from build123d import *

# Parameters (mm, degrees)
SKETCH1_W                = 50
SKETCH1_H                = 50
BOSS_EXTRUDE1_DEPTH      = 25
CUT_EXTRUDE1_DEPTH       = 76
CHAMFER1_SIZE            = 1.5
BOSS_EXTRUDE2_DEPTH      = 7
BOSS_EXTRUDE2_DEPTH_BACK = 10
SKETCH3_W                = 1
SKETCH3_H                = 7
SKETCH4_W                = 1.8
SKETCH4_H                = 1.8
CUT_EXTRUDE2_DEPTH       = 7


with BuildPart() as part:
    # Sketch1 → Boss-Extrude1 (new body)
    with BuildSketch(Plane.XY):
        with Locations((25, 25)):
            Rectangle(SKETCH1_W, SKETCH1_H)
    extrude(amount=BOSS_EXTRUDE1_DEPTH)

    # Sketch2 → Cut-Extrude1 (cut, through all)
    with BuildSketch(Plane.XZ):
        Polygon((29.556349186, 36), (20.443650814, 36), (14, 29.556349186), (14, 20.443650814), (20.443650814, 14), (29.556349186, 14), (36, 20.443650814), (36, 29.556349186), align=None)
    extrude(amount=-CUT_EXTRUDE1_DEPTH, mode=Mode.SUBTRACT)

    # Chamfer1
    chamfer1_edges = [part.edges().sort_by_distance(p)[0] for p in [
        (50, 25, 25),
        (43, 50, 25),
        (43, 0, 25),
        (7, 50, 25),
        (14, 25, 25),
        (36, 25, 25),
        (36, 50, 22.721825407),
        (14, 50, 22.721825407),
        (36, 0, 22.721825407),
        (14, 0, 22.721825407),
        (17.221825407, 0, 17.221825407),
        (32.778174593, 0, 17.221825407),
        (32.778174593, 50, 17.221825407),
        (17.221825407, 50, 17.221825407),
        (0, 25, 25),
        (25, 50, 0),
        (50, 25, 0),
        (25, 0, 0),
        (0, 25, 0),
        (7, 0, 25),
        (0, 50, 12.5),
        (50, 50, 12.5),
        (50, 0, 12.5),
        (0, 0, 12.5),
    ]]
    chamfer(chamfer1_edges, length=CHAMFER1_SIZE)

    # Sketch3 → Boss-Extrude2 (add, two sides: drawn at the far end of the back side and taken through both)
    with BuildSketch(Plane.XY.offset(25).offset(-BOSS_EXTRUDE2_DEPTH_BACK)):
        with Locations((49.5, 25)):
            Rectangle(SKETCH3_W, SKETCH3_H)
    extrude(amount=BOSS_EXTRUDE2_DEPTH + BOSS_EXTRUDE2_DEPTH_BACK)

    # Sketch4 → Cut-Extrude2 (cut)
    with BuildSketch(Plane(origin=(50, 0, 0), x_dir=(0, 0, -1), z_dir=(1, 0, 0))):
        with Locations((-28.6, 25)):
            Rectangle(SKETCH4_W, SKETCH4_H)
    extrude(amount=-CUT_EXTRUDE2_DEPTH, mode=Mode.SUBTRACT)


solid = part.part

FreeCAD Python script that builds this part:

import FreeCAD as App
import Part
import Sketcher

V = App.Vector


def edges_at(feature, points):
    """Names of the edges that pass closest to the given points."""
    edges = feature.Shape.Edges
    near = lambda p: min(range(len(edges)), key=lambda i: edges[i].distToShape(Part.Vertex(*p))[0])
    return sorted({f"Edge{near(p) + 1}" for p in points})

doc = App.newDocument("Part")
body = doc.addObject("PartDesign::Body", "Body")

sketch1 = body.newObject("Sketcher::SketchObject", "Sketch")
sketch1.AttachmentSupport = (doc.getObject("XY_Plane"), [""])
sketch1.MapMode = "FlatFace"
sketch1.addGeometry([
    Part.LineSegment(V(0, 50, 0), V(0, 0, 0)),
    Part.LineSegment(V(0, 0, 0), V(50, 0, 0)),
    Part.LineSegment(V(50, 0, 0), V(50, 50, 0)),
    Part.LineSegment(V(50, 50, 0), V(0, 50, 0)),
], False)
sketch1.addConstraint([
    Sketcher.Constraint("Coincident", 0, 2, 1, 1),
    Sketcher.Constraint("Coincident", 1, 2, 2, 1),
    Sketcher.Constraint("Coincident", 2, 2, 3, 1),
    Sketcher.Constraint("Coincident", 3, 2, 0, 1),
    Sketcher.Constraint("Vertical", 0),
    Sketcher.Constraint("Horizontal", 1),
    Sketcher.Constraint("Vertical", 2),
    Sketcher.Constraint("Horizontal", 3),
    Sketcher.Constraint("Coincident", 0, 2, -1, 1),
    Sketcher.Constraint("Equal", 3, 0),
    Sketcher.Constraint("DistanceX", 1, 1, 1, 2, 50.0),
])
pad1 = body.newObject("PartDesign::Pad", "Pad")
pad1.Profile = sketch1
pad1.Length = 25

sketch2 = body.newObject("Sketcher::SketchObject", "Sketch001")
sketch2.AttachmentSupport = (doc.getObject("XZ_Plane"), [""])
sketch2.MapMode = "FlatFace"
sketch2.addGeometry([
    Part.LineSegment(V(29.556349, 36, 0), V(20.443651, 36, 0)),
    Part.LineSegment(V(20.443651, 36, 0), V(14, 29.556349, 0)),
    Part.LineSegment(V(14, 29.556349, 0), V(14, 20.443651, 0)),
    Part.LineSegment(V(14, 20.443651, 0), V(20.443651, 14, 0)),
    Part.LineSegment(V(20.443651, 14, 0), V(29.556349, 14, 0)),
    Part.LineSegment(V(29.556349, 14, 0), V(36, 20.443651, 0)),
    Part.LineSegment(V(36, 20.443651, 0), V(36, 29.556349, 0)),
    Part.LineSegment(V(36, 29.556349, 0), V(29.556349, 36, 0)),
], False)
sketch2.addConstraint([
    Sketcher.Constraint("Coincident", 0, 2, 1, 1),
    Sketcher.Constraint("Coincident", 1, 2, 2, 1),
    Sketcher.Constraint("Coincident", 2, 2, 3, 1),
    Sketcher.Constraint("Coincident", 3, 2, 4, 1),
    Sketcher.Constraint("Coincident", 4, 2, 5, 1),
    Sketcher.Constraint("Coincident", 5, 2, 6, 1),
    Sketcher.Constraint("Coincident", 6, 2, 7, 1),
    Sketcher.Constraint("Coincident", 7, 2, 0, 1),
    Sketcher.Constraint("Horizontal", 0),
    Sketcher.Constraint("Vertical", 2),
    Sketcher.Constraint("Horizontal", 4),
    Sketcher.Constraint("Vertical", 6),
    Sketcher.Constraint("Perpendicular", 1, 3),
    Sketcher.Constraint("Perpendicular", 3, 5),
    Sketcher.Constraint("Perpendicular", 5, 7),
    Sketcher.Constraint("Horizontal", 2, 2, 5, 2),
    Sketcher.Constraint("Horizontal", 1, 2, 6, 2),
    Sketcher.Constraint("Vertical", 0, 2, 3, 2),
    Sketcher.Constraint("Vertical", 4, 2, 7, 2),
    Sketcher.Constraint("Equal", 4, 2),
    Sketcher.Constraint("DistanceY", -1, 1, 0, 2, 36.0),
    Sketcher.Constraint("DistanceX", -1, 1, 1, 2, 14.0),
    Sketcher.Constraint("DistanceY", -1, 1, 3, 2, 14.0),
    Sketcher.Constraint("DistanceX", 0, 2, 0, 1, 9.112698),
])
pocket1 = body.newObject("PartDesign::Pocket", "Pocket")
pocket1.Profile = sketch2
pocket1.Type = "ThroughAll"
doc.recompute()

chamfer = body.newObject("PartDesign::Chamfer", "Chamfer")
chamfer.Base = (pocket1, edges_at(pocket1, [
    (50, 25, 25),
    (43, 50, 25),
    (43, 0, 25),
    (7, 50, 25),
    (14, 25, 25),
    (36, 25, 25),
    (36, 50, 22.722),
    (14, 50, 22.722),
    (36, 0, 22.722),
    (14, 0, 22.722),
    (17.222, 0, 17.222),
    (32.778, 0, 17.222),
    (32.778, 50, 17.222),
    (17.222, 50, 17.222),
    (0, 25, 25),
    (25, 50, 0),
    (50, 25, 0),
    (25, 0, 0),
    (0, 25, 0),
    (7, 0, 25),
    (0, 50, 12.5),
    (50, 50, 12.5),
    (50, 0, 12.5),
    (0, 0, 12.5),
]))
chamfer.Size = 1.5

sketch3 = body.newObject("Sketcher::SketchObject", "Sketch002")
sketch3.AttachmentSupport = (doc.getObject("XY_Plane"), [""])
sketch3.MapMode = "FlatFace"
sketch3.AttachmentOffset = App.Placement(V(0, 0, 25), App.Rotation())
sketch3.addGeometry([
    Part.LineSegment(V(49, 28.5, 0), V(49, 21.5, 0)),
    Part.LineSegment(V(49, 21.5, 0), V(50, 21.5, 0)),
    Part.LineSegment(V(50, 21.5, 0), V(50, 28.5, 0)),
    Part.LineSegment(V(50, 28.5, 0), V(49, 28.5, 0)),
], False)
sketch3.addConstraint([
    Sketcher.Constraint("Coincident", 0, 2, 1, 1),
    Sketcher.Constraint("Coincident", 1, 2, 2, 1),
    Sketcher.Constraint("Coincident", 2, 2, 3, 1),
    Sketcher.Constraint("Coincident", 3, 2, 0, 1),
    Sketcher.Constraint("Vertical", 0),
    Sketcher.Constraint("Horizontal", 1),
    Sketcher.Constraint("Vertical", 2),
    Sketcher.Constraint("Horizontal", 3),
    Sketcher.Constraint("DistanceX", 1, 1, 1, 2, 1.0),
    Sketcher.Constraint("DistanceY", 0, 2, 0, 1, 7.0),
    Sketcher.Constraint("DistanceX", -1, 1, 0, 2, 49.0),
    Sketcher.Constraint("DistanceY", -1, 1, 0, 2, 21.5),
])
pad2 = body.newObject("PartDesign::Pad", "Pad001")
pad2.Profile = sketch3
pad2.Type = "TwoLengths"
pad2.Length = 7
pad2.Length2 = 10

sketch4 = body.newObject("Sketcher::SketchObject", "Sketch003")
sketch4.AttachmentSupport = (doc.getObject("YZ_Plane"), [""])
sketch4.MapMode = "FlatFace"
sketch4.AttachmentOffset = App.Placement(V(0, 0, 50), App.Rotation())
sketch4.addGeometry([
    Part.LineSegment(V(25.9, 29.5, 0), V(24.1, 29.5, 0)),
    Part.LineSegment(V(24.1, 29.5, 0), V(24.1, 27.7, 0)),
    Part.LineSegment(V(24.1, 27.7, 0), V(25.9, 27.7, 0)),
    Part.LineSegment(V(25.9, 27.7, 0), V(25.9, 29.5, 0)),
], False)
sketch4.addConstraint([
    Sketcher.Constraint("Coincident", 0, 2, 1, 1),
    Sketcher.Constraint("Coincident", 1, 2, 2, 1),
    Sketcher.Constraint("Coincident", 2, 2, 3, 1),
    Sketcher.Constraint("Coincident", 3, 2, 0, 1),
    Sketcher.Constraint("Horizontal", 0),
    Sketcher.Constraint("Vertical", 1),
    Sketcher.Constraint("Horizontal", 2),
    Sketcher.Constraint("Vertical", 3),
    Sketcher.Constraint("Equal", 2, 1),
    Sketcher.Constraint("DistanceX", 0, 2, 0, 1, 1.8),
    Sketcher.Constraint("DistanceX", -1, 1, 0, 2, 24.1),
    Sketcher.Constraint("DistanceY", -1, 1, 0, 2, 29.5),
])
pocket2 = body.newObject("PartDesign::Pocket", "Pocket001")
pocket2.Profile = sketch4
pocket2.Length = 7

doc.recompute()
